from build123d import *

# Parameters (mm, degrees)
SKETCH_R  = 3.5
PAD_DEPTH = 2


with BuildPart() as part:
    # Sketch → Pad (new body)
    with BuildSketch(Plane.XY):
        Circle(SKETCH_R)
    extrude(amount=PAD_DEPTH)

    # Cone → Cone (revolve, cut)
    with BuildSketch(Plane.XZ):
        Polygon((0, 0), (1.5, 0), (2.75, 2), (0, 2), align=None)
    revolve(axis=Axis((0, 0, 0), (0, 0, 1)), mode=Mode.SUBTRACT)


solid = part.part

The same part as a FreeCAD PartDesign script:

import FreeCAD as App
import Part
import Sketcher
Q = App.Units.Quantity


def add_polygon(sketch, points):
    """Adds a closed chain of lines whose ends are joined by coincident constraints."""
    first, n = sketch.GeometryCount, len(points)
    for a, b in zip(points, points[1:] + points[:1]):
        sketch.addGeometry(Part.LineSegment(App.Vector(*a, 0), App.Vector(*b, 0)), False)
    for i in range(n):
        sketch.addConstraint(Sketcher.Constraint("Coincident", first + i, 2, first + (i + 1) % n, 1))

doc = App.newDocument("Part")
params = doc.addObject("Spreadsheet::Sheet", "Params")
for row, (alias, value) in enumerate([
    ("sketch1_diameter", "7 mm"),
    ("pad1_length", "2 mm"),
    ("sketch2_height", "2 mm"),
    ("sketch2_width", "1.5 mm"),
    ("sketch2_width2", "2.75 mm"),
    ("groove_angle", "360 deg"),
], start=1):
    params.set(f"A{row}", alias)
    params.set(f"B{row}", "=" + value)
    params.setAlias(f"B{row}", alias)

body = doc.addObject("PartDesign::Body", "Body")

# Sketch on XY plane
sketch1 = body.newObject("Sketcher::SketchObject", "Sketch")
sketch1.AttachmentSupport = (doc.getObject("XY_Plane"), [""])
sketch1.MapMode = "FlatFace"
sketch1.addGeometry(Part.Circle(App.Vector(0, 0, 0), App.Vector(0, 0, 1), 3.5), False)
sketch1.addConstraint([
    Sketcher.Constraint("Coincident", 0, 3, -1, 1),
    Sketcher.Constraint("Diameter", 0, Q("7 mm")),
])
sketch1.setExpression("Constraints[1]", "Params.sketch1_diameter")
pad1 = body.newObject("PartDesign::Pad", "Pad")
pad1.Profile = sketch1
pad1.setExpression("Length", "Params.pad1_length")

# Sketch on XZ plane
sketch2 = body.newObject("Sketcher::SketchObject", "Sketch001")
sketch2.AttachmentSupport = (doc.getObject("XZ_Plane"), [""])
sketch2.MapMode = "FlatFace"
add_polygon(sketch2, [(0, 0), (1.5, 0), (2.75, 2), (0, 2)])  # lines 0-3
sketch2.addConstraint([
    Sketcher.Constraint("Horizontal", 0),
    Sketcher.Constraint("Horizontal", 2),
    Sketcher.Constraint("Vertical", 3),
    Sketcher.Constraint("Coincident", 3, 2, -1, 1),
    Sketcher.Constraint("DistanceY", 3, 2, 3, 1, Q("2 mm")),
    Sketcher.Constraint("DistanceX", 0, 1, 0, 2, Q("1.5 mm")),
    Sketcher.Constraint("DistanceX", 2, 2, 2, 1, Q("2.75 mm")),
])
sketch2.setExpression("Constraints[8]", "Params.sketch2_height")
sketch2.setExpression("Constraints[9]", "Params.sketch2_width")
sketch2.setExpression("Constraints[10]", "Params.sketch2_width2")
groove = body.newObject("PartDesign::Groove", "Groove")
groove.Profile = sketch2
groove.ReferenceAxis = (sketch2, ["V_Axis"])
groove.setExpression("Angle", "Params.groove_angle")

doc.recompute()
